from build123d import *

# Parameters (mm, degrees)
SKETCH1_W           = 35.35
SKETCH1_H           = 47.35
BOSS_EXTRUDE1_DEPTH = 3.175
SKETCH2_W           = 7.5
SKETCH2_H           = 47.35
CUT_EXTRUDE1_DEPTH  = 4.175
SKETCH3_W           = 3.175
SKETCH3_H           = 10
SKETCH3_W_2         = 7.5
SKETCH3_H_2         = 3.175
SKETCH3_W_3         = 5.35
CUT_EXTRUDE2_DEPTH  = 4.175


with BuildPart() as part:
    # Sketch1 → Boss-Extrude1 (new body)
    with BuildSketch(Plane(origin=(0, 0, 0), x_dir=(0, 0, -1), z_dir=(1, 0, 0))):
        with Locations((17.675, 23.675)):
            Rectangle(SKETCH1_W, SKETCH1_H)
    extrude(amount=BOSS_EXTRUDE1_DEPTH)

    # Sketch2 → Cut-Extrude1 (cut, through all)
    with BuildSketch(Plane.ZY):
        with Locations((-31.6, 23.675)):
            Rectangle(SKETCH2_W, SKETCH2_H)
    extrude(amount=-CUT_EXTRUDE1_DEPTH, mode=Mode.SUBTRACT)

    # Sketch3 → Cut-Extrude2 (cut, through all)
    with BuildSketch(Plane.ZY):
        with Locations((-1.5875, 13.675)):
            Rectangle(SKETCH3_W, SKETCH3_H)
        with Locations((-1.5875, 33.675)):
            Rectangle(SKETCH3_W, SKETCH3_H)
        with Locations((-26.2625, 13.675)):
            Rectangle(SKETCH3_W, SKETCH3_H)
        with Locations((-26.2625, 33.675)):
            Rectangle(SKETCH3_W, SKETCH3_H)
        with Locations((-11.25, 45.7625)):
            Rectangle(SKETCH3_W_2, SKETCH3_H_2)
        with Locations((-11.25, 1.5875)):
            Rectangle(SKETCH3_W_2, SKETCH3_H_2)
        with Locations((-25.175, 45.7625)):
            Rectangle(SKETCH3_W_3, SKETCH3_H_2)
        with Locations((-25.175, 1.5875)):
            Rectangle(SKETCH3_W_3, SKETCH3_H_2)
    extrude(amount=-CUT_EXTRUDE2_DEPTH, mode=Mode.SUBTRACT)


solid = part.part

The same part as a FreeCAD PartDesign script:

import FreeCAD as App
import Part
import Sketcher

doc = App.newDocument("Part")
params = doc.addObject("Spreadsheet::Sheet", "Params")
for row, (alias, value) in enumerate([
    ("sketch1_width", "47.35 mm"),
    ("sketch1_height", "35.35 mm"),
    ("pad1_length", "3.175 mm"),
    ("sketch2_height", "7.5 mm"),
    ("sketch2_width", "47.35 mm"),
    ("sketch3_width", "10 mm"),
    ("sketch3_height", "7.5 mm"),
    ("sketch3_height2", "5.35 mm"),
], start=1):
    params.set(f"A{row}", alias)
    params.set(f"B{row}", "=" + value)
    params.setAlias(f"B{row}", alias)

body = doc.addObject("PartDesign::Body", "Body")

sketch1 = doc.addObject("Sketcher::SketchObject", "Sketch")
body.addObject(sketch1)
sketch1.AttachmentSupport = (doc.YZ_Plane, [""])
sketch1.MapMode = "FlatFace"
sketch1.addGeometry([
    Part.LineSegment(App.Vector(47, 0, 0), App.Vector(0, 0, 0)),
    Part.LineSegment(App.Vector(0, 0, 0), App.Vector(0, -35, 0)),
    Part.LineSegment(App.Vector(0, -35, 0), App.Vector(47, -35, 0)),
    Part.LineSegment(App.Vector(47, -35, 0), App.Vector(47, 0, 0)),
], False)
sketch1.addConstraint([
    Sketcher.Constraint("Coincident", 0, 2, 1, 1),
    Sketcher.Constraint("Coincident", 1, 2, 2, 1),
    Sketcher.Constraint("Coincident", 2, 2, 3, 1),
    Sketcher.Constraint("Coincident", 3, 2, 0, 1),
    Sketcher.Constraint("Horizontal", 0),
    Sketcher.Constraint("Vertical", 1),
    Sketcher.Constraint("Horizontal", 2),
    Sketcher.Constraint("Vertical", 3),
    Sketcher.Constraint("Coincident", 0, 2, -1, 1),
    Sketcher.Constraint("DistanceX", 0, 2, 0, 1, 47.35),
    Sketcher.Constraint("DistanceY", 1, 2, 1, 1, 35.35),
])
sketch1.setExpression("Constraints[9]", "Params.sketch1_width")
sketch1.setExpression("Constraints[10]", "Params.sketch1_height")
pad1 = doc.addObject("PartDesign::Pad", "Pad")
body.addObject(pad1)
pad1.Profile = sketch1
pad1.setExpression("Length", "Params.pad1_length")

sketch2 = doc.addObject("Sketcher::SketchObject", "Sketch001")
body.addObject(sketch2)
sketch2.AttachmentSupport = (doc.YZ_Plane, [""])
sketch2.MapMode = "FlatFace"
sketch2.addGeometry([
    Part.LineSegment(App.Vector(47, -35, 0), App.Vector(0, -35, 0)),
    Part.LineSegment(App.Vector(0, -35, 0), App.Vector(0, -28, 0)),
    Part.LineSegment(App.Vector(0, -28, 0), App.Vector(47, -28, 0)),
    Part.LineSegment(App.Vector(47, -28, 0), App.Vector(47, -35, 0)),
], False)
sketch2.addConstraint([
    Sketcher.Constraint("Coincident", 0, 2, 1, 1),
    Sketcher.Constraint("Coincident", 1, 2, 2, 1),
    Sketcher.Constraint("Coincident", 2, 2, 3, 1),
    Sketcher.Constraint("Coincident", 3, 2, 0, 1),
    Sketcher.Constraint("Horizontal", 0),
    Sketcher.Constraint("Vertical", 1),
    Sketcher.Constraint("Horizontal", 2),
    Sketcher.Constraint("Vertical", 3),
    Sketcher.Constraint("PointOnObject", 0, 2, -2),
    Sketcher.Constraint("DistanceY", 1, 1, 1, 2, 7.5),
    Sketcher.Constraint("DistanceX", 0, 2, 0, 1, 47.35),
    Sketcher.Constraint("DistanceY", 0, 2, -1, 1, 35.35),
])
sketch2.setExpression("Constraints[9]", "Params.sketch2_height")
sketch2.setExpression("Constraints[10]", "Params.sketch2_width")
pocket1 = doc.addObject("PartDesign::Pocket", "Pocket")
body.addObject(pocket1)
pocket1.Profile = sketch2
pocket1.Type = "ThroughAll"
pocket1.Reversed = True

sketch3 = doc.addObject("Sketcher::SketchObject", "Sketch002")
body.addObject(sketch3)
sketch3.AttachmentSupport = (doc.YZ_Plane, [""])
sketch3.MapMode = "FlatFace"
sketch3.addGeometry([
    Part.LineSegment(App.Vector(18.7, -3.2, 0), App.Vector(8.7, -3.2, 0)),
    Part.LineSegment(App.Vector(8.7, -3.2, 0), App.Vector(8.7, 0, 0)),
    Part.LineSegment(App.Vector(8.7, 0, 0), App.Vector(18.7, 0, 0)),
    Part.LineSegment(App.Vector(18.7, 0, 0), App.Vector(18.7, -3.2, 0)),
    Part.LineSegment(App.Vector(38.7, -3.2, 0), App.Vector(28.7, -3.2, 0)),
    Part.LineSegment(App.Vector(28.7, -3.2, 0), App.Vector(28.7, 0, 0)),
    Part.LineSegment(App.Vector(28.7, 0, 0), App.Vector(38.7, 0, 0)),
    Part.LineSegment(App.Vector(38.7, 0, 0), App.Vector(38.7, -3.2, 0)),
    Part.LineSegment(App.Vector(18.7, -27.9, 0), App.Vector(8.7, -27.9, 0)),
    Part.LineSegment(App.Vector(8.7, -27.9, 0), App.Vector(8.7, -24.7, 0)),
    Part.LineSegment(App.Vector(8.7, -24.7, 0), App.Vector(18.7, -24.7, 0)),
    Part.LineSegment(App.Vector(18.7, -24.7, 0), App.Vector(18.7, -27.9, 0)),
    Part.LineSegment(App.Vector(38.7, -27.9, 0), App.Vector(28.7, -27.9, 0)),
    Part.LineSegment(App.Vector(28.7, -27.9, 0), App.Vector(28.7, -24.7, 0)),
    Part.LineSegment(App.Vector(28.7, -24.7, 0), App.Vector(38.7, -24.7, 0)),
    Part.LineSegment(App.Vector(38.7, -24.7, 0), App.Vector(38.7, -27.9, 0)),
    Part.LineSegment(App.Vector(47.4, -15, 0), App.Vector(44.2, -15, 0)),
    Part.LineSegment(App.Vector(44.2, -15, 0), App.Vector(44.2, -7.5, 0)),
    Part.LineSegment(App.Vector(44.2, -7.5, 0), App.Vector(47.4, -7.5, 0)),
    Part.LineSegment(App.Vector(47.4, -7.5, 0), App.Vector(47.4, -15, 0)),
    Part.LineSegment(App.Vector(3.2, -15, 0), App.Vector(0, -15, 0)),
    Part.LineSegment(App.Vector(0, -15, 0), App.Vector(0, -7.5, 0)),
    Part.LineSegment(App.Vector(0, -7.5, 0), App.Vector(3.2, -7.5, 0)),
    Part.LineSegment(App.Vector(3.2, -7.5, 0), App.Vector(3.2, -15, 0)),
    Part.LineSegment(App.Vector(47.4, -27.9, 0), App.Vector(44.2, -27.9, 0)),
    Part.LineSegment(App.Vector(44.2, -27.9, 0), App.Vector(44.2, -22.5, 0)),
    Part.LineSegment(App.Vector(44.2, -22.5, 0), App.Vector(47.4, -22.5, 0)),
    Part.LineSegment(App.Vector(47.4, -22.5, 0), App.Vector(47.4, -27.9, 0)),
    Part.LineSegment(App.Vector(3.2, -27.9, 0), App.Vector(0, -27.9, 0)),
    Part.LineSegment(App.Vector(0, -27.9, 0), App.Vector(0, -22.5, 0)),
    Part.LineSegment(App.Vector(0, -22.5, 0), App.Vector(3.2, -22.5, 0)),
    Part.LineSegment(App.Vector(3.2, -22.5, 0), App.Vector(3.2, -27.9, 0)),
], False)
sketch3.addConstraint([
    Sketcher.Constraint("Coincident", 0, 2, 1, 1),
    Sketcher.Constraint("Coincident", 1, 2, 2, 1),
    Sketcher.Constraint("Coincident", 2, 2, 3, 1),
    Sketcher.Constraint("Coincident", 3, 2, 0, 1),
    Sketcher.Constraint("Coincident", 4, 2, 5, 1),
    Sketcher.Constraint("Coincident", 5, 2, 6, 1),
    Sketcher.Constraint("Coincident", 6, 2, 7, 1),
    Sketcher.Constraint("Coincident", 7, 2, 4, 1),
    Sketcher.Constraint("Coincident", 8, 2, 9, 1),
    Sketcher.Constraint("Coincident", 9, 2, 10, 1),
    Sketcher.Constraint("Coincident", 10, 2, 11, 1),
    Sketcher.Constraint("Coincident", 11, 2, 8, 1),
    Sketcher.Constraint("Coincident", 12, 2, 13, 1),
    Sketcher.Constraint("Coincident", 13, 2, 14, 1),
    Sketcher.Constraint("Coincident", 14, 2, 15, 1),
    Sketcher.Constraint("Coincident", 15, 2, 12, 1),
    Sketcher.Constraint("Coincident", 16, 2, 17, 1),
    Sketcher.Constraint("Coincident", 17, 2, 18, 1),
    Sketcher.Constraint("Coincident", 18, 2, 19, 1),
    Sketcher.Constraint("Coincident", 19, 2, 16, 1),
    Sketcher.Constraint("Coincident", 20, 2, 21, 1),
    Sketcher.Constraint("Coincident", 21, 2, 22, 1),
    Sketcher.Constraint("Coincident", 22, 2, 23, 1),
    Sketcher.Constraint("Coincident", 23, 2, 20, 1),
    Sketcher.Constraint("Coincident", 24, 2, 25, 1),
    Sketcher.Constraint("Coincident", 25, 2, 26, 1),
    Sketcher.Constraint("Coincident", 26, 2, 27, 1),
    Sketcher.Constraint("Coincident", 27, 2, 24, 1),
    Sketcher.Constraint("Coincident", 28, 2, 29, 1),
    Sketcher.Constraint("Coincident", 29, 2, 30, 1),
    Sketcher.Constraint("Coincident", 30, 2, 31, 1),
    Sketcher.Constraint("Coincident", 31, 2, 28, 1),
    Sketcher.Constraint("Horizontal", 0),
    Sketcher.Constraint("Vertical", 1),
    Sketcher.Constraint("Horizontal", 2),
    Sketcher.Constraint("Vertical", 3),
    Sketcher.Constraint("Horizontal", 4),
    Sketcher.Constraint("Vertical", 5),
    Sketcher.Constraint("Horizontal", 6),
    Sketcher.Constraint("Vertical", 7),
    Sketcher.Constraint("Horizontal", 8),
    Sketcher.Constraint("Vertical", 9),
    Sketcher.Constraint("Horizontal", 10),
    Sketcher.Constraint("Vertical", 11),
    Sketcher.Constraint("Horizontal", 12),
    Sketcher.Constraint("Vertical", 13),
    Sketcher.Constraint("Horizontal", 14),
    Sketcher.Constraint("Vertical", 15),
    Sketcher.Constraint("Horizontal", 16),
    Sketcher.Constraint("Vertical", 17),
    Sketcher.Constraint("Horizontal", 18),
    Sketcher.Constraint("Vertical", 19),
    Sketcher.Constraint("Horizontal", 20),
    Sketcher.Constraint("Vertical", 21),
    Sketcher.Constraint("Horizontal", 22),
    Sketcher.Constraint("Vertical", 23),
    Sketcher.Constraint("Horizontal", 24),
    Sketcher.Constraint("Vertical", 25),
    Sketcher.Constraint("Horizontal", 26),
    Sketcher.Constraint("Vertical", 27),
    Sketcher.Constraint("Horizontal", 28),
    Sketcher.Constraint("Vertical", 29),
    Sketcher.Constraint("Horizontal", 30),
    Sketcher.Constraint("Vertical", 31),
    Sketcher.Constraint("PointOnObject", 1, 2, -1),
    Sketcher.Constraint("PointOnObject", 5, 2, -1),
    Sketcher.Constraint("PointOnObject", 20, 2, -2),
    Sketcher.Constraint("PointOnObject", 28, 2, -2),
    Sketcher.Constraint("Horizontal", 3, 2, 4, 2),
    Sketcher.Constraint("Horizontal", 11, 2, 12, 2),
    Sketcher.Constraint("Horizontal", 10, 2, 13, 2),
    Sketcher.Constraint("Horizontal", 19, 2, 20, 2),
    Sketcher.Constraint("Horizontal", 18, 2, 21, 2),
    Sketcher.Constraint("Horizontal", 15, 2, 24, 2),
    Sketcher.Constraint("Horizontal", 27, 2, 28, 2),
    Sketcher.Constraint("Horizontal", 26, 2, 29, 2),
    Sketcher.Constraint("Vertical", 1, 2, 8, 2),
    Sketcher.Constraint("Vertical", 3, 2, 10, 2),
    Sketcher.Constraint("Vertical", 5, 2, 12, 2),
    Sketcher.Constraint("Vertical", 7, 2, 14, 2),
    Sketcher.Constraint("Vertical", 17, 2, 24, 2),
    Sketcher.Constraint("Vertical", 19, 2, 26, 2),
    Sketcher.Constraint("Vertical", 23, 2, 30, 2),
    Sketcher.Constraint("Equal", 2, 4),
    Sketcher.Constraint("Equal", 18, 20),
    Sketcher.Constraint("Equal", 30, 1),
    Sketcher.Constraint("Equal", 7, 9),
    Sketcher.Constraint("DistanceX", 0, 2, 0, 1, 10.0),
    Sketcher.Constraint("DistanceY", 17, 1, 17, 2, 7.5),
    Sketcher.Constraint("DistanceY", 16, 2, -1, 1, 15.0),
    Sketcher.Constraint("DistanceX", 3, 2, 4, 2, 10.0),
    Sketcher.Constraint("DistanceY", 25, 1, 25, 2, 5.35),
    Sketcher.Constraint("DistanceY", 25, 2, -1, 1, 22.5),
    Sketcher.Constraint("DistanceY", 9, 2, 0, 2, 21.5),
    Sketcher.Constraint("DistanceX", 14, 2, 16, 2, 5.5),
    Sketcher.Constraint("DistanceX", 22, 2, 0, 2, 5.5),
])
sketch3.setExpression("Constraints[87]", "Params.sketch3_width")
sketch3.setExpression("Constraints[88]", "Params.sketch3_height")
sketch3.setExpression("Constraints[91]", "Params.sketch3_height2")
pocket2 = doc.addObject("PartDesign::Pocket", "Pocket001")
body.addObject(pocket2)
pocket2.Profile = sketch3
pocket2.Type = "ThroughAll"
pocket2.Reversed = True

doc.recompute()
